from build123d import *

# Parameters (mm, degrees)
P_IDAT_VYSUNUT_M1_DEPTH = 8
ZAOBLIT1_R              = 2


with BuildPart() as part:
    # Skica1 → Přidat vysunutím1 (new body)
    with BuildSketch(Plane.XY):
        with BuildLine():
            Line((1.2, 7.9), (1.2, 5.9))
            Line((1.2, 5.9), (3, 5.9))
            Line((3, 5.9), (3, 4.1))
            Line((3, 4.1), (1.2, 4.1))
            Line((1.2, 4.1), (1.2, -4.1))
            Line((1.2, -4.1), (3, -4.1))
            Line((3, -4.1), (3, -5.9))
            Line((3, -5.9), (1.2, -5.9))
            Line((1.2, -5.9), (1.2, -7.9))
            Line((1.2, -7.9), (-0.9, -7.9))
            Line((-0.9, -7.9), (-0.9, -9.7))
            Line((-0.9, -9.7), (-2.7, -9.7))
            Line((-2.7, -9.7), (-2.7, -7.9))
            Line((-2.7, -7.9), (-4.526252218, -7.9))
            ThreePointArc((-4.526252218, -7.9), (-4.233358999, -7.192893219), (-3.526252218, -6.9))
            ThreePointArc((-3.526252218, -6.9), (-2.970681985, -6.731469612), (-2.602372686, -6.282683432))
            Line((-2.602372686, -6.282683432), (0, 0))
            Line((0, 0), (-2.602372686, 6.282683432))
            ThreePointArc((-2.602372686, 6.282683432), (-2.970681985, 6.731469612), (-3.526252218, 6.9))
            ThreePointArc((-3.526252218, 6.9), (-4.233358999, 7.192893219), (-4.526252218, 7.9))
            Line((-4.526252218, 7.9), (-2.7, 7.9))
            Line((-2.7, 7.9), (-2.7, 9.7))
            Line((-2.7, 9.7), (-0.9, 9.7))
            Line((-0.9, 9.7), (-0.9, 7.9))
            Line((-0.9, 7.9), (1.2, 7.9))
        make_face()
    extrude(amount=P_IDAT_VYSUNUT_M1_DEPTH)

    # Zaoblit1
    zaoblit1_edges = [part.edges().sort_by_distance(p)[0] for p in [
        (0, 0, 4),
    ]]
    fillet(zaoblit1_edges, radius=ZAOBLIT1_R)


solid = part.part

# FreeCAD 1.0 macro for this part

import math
import FreeCAD as App
import Part
import Sketcher

V = App.Vector
Q = App.Units.Quantity


def edges_at(feature, points):
    """Names of the edges that pass closest to the given points."""
    edges = feature.Shape.Edges
    near = lambda p: min(range(len(edges)), key=lambda i: edges[i].distToShape(Part.Vertex(*p))[0])
    return sorted({f"Edge{near(p) + 1}" for p in points})

doc = App.newDocument("Part")
body = doc.addObject("PartDesign::Body", "Body")

# Sketch on XY plane
sketch1 = body.newObject("Sketcher::SketchObject", "Sketch")
sketch1.AttachmentSupport = (doc.getObject("XY_Plane"), [""])
sketch1.MapMode = "FlatFace"
sketch1.addGeometry([
    Part.LineSegment(V(1.2, 5.9, 0), V(1.2, 7.9, 0)),  # 0
    Part.LineSegment(V(1.2, 7.9, 0), V(-0.9, 7.9, 0)),  # 1
    Part.LineSegment(V(-0.9, 7.9, 0), V(-0.9, 9.7, 0)),  # 2
    Part.LineSegment(V(-0.9, 9.7, 0), V(-2.7, 9.7, 0)),  # 3
    Part.LineSegment(V(-2.7, 9.7, 0), V(-2.7, 7.9, 0)),  # 4
    Part.LineSegment(V(-2.7, 7.9, 0), V(-4.5, 7.9, 0)),  # 5
    Part.ArcOfCircle(Part.Circle(V(-3.5, 7.9, 0), V(0, 0, 1), 1), math.radians(-180), math.radians(-90)),  # 6
    Part.ArcOfCircle(Part.Circle(V(-3.5, 5.9, 0), V(0, 0, 1), 1), math.radians(22), math.radians(90)),  # 7
    Part.LineSegment(V(-2.6, 6.3, 0), V(0, 0, 0)),  # 8
    Part.LineSegment(V(0, 0, 0), V(-2.6, -6.3, 0)),  # 9
    Part.ArcOfCircle(Part.Circle(V(-3.5, -5.9, 0), V(0, 0, 1), 1), math.radians(-90), math.radians(-22)),  # 10
    Part.ArcOfCircle(Part.Circle(V(-3.5, -7.9, 0), V(0, 0, 1), 1), math.radians(90), math.radians(180)),  # 11
    Part.LineSegment(V(-4.5, -7.9, 0), V(-2.7, -7.9, 0)),  # 12
    Part.LineSegment(V(-2.7, -7.9, 0), V(-2.7, -9.7, 0)),  # 13
    Part.LineSegment(V(-2.7, -9.7, 0), V(-0.9, -9.7, 0)),  # 14
    Part.LineSegment(V(-0.9, -9.7, 0), V(-0.9, -7.9, 0)),  # 15
    Part.LineSegment(V(-0.9, -7.9, 0), V(1.2, -7.9, 0)),  # 16
    Part.LineSegment(V(1.2, -7.9, 0), V(1.2, -5.9, 0)),  # 17
    Part.LineSegment(V(1.2, -5.9, 0), V(3, -5.9, 0)),  # 18
    Part.LineSegment(V(3, -5.9, 0), V(3, -4.1, 0)),  # 19
    Part.LineSegment(V(3, -4.1, 0), V(1.2, -4.1, 0)),  # 20
    Part.LineSegment(V(1.2, -4.1, 0), V(1.2, 4.1, 0)),  # 21
    Part.LineSegment(V(1.2, 4.1, 0), V(3, 4.1, 0)),  # 22
    Part.LineSegment(V(3, 4.1, 0), V(3, 5.9, 0)),  # 23
    Part.LineSegment(V(3, 5.9, 0), V(1.2, 5.9, 0)),  # 24
], False)
sketch1.addConstraint([
    Sketcher.Constraint("Coincident", 0, 2, 1, 1),
    Sketcher.Constraint("Coincident", 1, 2, 2, 1),
    Sketcher.Constraint("Coincident", 2, 2, 3, 1),
    Sketcher.Constraint("Coincident", 3, 2, 4, 1),
    Sketcher.Constraint("Coincident", 4, 2, 5, 1),
    Sketcher.Constraint("Coincident", 5, 2, 6, 1),
    Sketcher.Constraint("Tangent", 6, 2, 7, 2),
    Sketcher.Constraint("Tangent", 7, 1, 8, 1),
    Sketcher.Constraint("Coincident", 8, 2, 9, 1),
    Sketcher.Constraint("Tangent", 9, 2, 10, 2),
    Sketcher.Constraint("Tangent", 10, 1, 11, 1),
    Sketcher.Constraint("Coincident", 11, 2, 12, 1),
    Sketcher.Constraint("Coincident", 12, 2, 13, 1),
    Sketcher.Constraint("Coincident", 13, 2, 14, 1),
    Sketcher.Constraint("Coincident", 14, 2, 15, 1),
    Sketcher.Constraint("Coincident", 15, 2, 16, 1),
    Sketcher.Constraint("Coincident", 16, 2, 17, 1),
    Sketcher.Constraint("Coincident", 17, 2, 18, 1),
    Sketcher.Constraint("Coincident", 18, 2, 19, 1),
    Sketcher.Constraint("Coincident", 19, 2, 20, 1),
    Sketcher.Constraint("Coincident", 20, 2, 21, 1),
    Sketcher.Constraint("Coincident", 21, 2, 22, 1),
    Sketcher.Constraint("Coincident", 22, 2, 23, 1),
    Sketcher.Constraint("Coincident", 23, 2, 24, 1),
    Sketcher.Constraint("Coincident", 24, 2, 0, 1),
    Sketcher.Constraint("Vertical", 0),
    Sketcher.Constraint("Horizontal", 1),
    Sketcher.Constraint("Vertical", 2),
    Sketcher.Constraint("Horizontal", 3),
    Sketcher.Constraint("Vertical", 4),
    Sketcher.Constraint("Horizontal", 5),
    Sketcher.Constraint("Horizontal", 12),
    Sketcher.Constraint("Vertical", 13),
    Sketcher.Constraint("Horizontal", 14),
    Sketcher.Constraint("Vertical", 15),
    Sketcher.Constraint("Horizontal", 16),
    Sketcher.Constraint("Vertical", 17),
    Sketcher.Constraint("Horizontal", 18),
    Sketcher.Constraint("Vertical", 19),
    Sketcher.Constraint("Horizontal", 20),
    Sketcher.Constraint("Vertical", 21),
    Sketcher.Constraint("Horizontal", 22),
    Sketcher.Constraint("Vertical", 23),
    Sketcher.Constraint("Horizontal", 24),
    Sketcher.Constraint("Coincident", 8, 2, -1, 1),
    Sketcher.Constraint("Equal", 6, 7),
    Sketcher.Constraint("Equal", 7, 10),
    Sketcher.Constraint("Equal", 10, 11),
    Sketcher.Constraint("Symmetric", 7, 3, 10, 3, -1),
    Sketcher.Constraint("Symmetric", 5, 2, 11, 2, -1),
    Sketcher.Constraint("Symmetric", 3, 2, 13, 2, -1),
    Sketcher.Constraint("Symmetric", 1, 2, 15, 2, -1),
    Sketcher.Constraint("Symmetric", 19, 2, 22, 2, -1),
    Sketcher.Constraint("Symmetric", 17, 2, 24, 2, -1),
    Sketcher.Constraint("Horizontal", 6, 3, 0, 2),
    Sketcher.Constraint("Horizontal", 1, 2, 4, 2),
    Sketcher.Constraint("Horizontal", 10, 3, 17, 2),
    Sketcher.Constraint("Vertical", 6, 3, 7, 3),
    Sketcher.Constraint("Vertical", 17, 2, 20, 2),
    Sketcher.Constraint("Equal", 14, 18),
    Sketcher.Constraint("Equal", 24, 2),
    Sketcher.Constraint("Equal", 15, 19),
    Sketcher.Constraint("Radius", 6, 1.0),
    Sketcher.Constraint("DistanceX", 1, 2, 1, 1, 2.1),
    Sketcher.Constraint("DistanceX", 3, 2, 3, 1, 1.8),
    Sketcher.Constraint("DistanceY", 21, 1, 21, 2, 8.2),
    Sketcher.Constraint("DistanceX", -1, 1, 18, 2, 3.0),
    Sketcher.Constraint("Angle", 8, Q("-67.5 deg")),
])
pad1 = body.newObject("PartDesign::Pad", "Pad")
pad1.Profile = sketch1
pad1.Length = 8
doc.recompute()

fillet = body.newObject("PartDesign::Fillet", "Fillet")
fillet.Base = (pad1, edges_at(pad1, [(0, 0, 4)]))
fillet.Radius = 2

doc.recompute()
